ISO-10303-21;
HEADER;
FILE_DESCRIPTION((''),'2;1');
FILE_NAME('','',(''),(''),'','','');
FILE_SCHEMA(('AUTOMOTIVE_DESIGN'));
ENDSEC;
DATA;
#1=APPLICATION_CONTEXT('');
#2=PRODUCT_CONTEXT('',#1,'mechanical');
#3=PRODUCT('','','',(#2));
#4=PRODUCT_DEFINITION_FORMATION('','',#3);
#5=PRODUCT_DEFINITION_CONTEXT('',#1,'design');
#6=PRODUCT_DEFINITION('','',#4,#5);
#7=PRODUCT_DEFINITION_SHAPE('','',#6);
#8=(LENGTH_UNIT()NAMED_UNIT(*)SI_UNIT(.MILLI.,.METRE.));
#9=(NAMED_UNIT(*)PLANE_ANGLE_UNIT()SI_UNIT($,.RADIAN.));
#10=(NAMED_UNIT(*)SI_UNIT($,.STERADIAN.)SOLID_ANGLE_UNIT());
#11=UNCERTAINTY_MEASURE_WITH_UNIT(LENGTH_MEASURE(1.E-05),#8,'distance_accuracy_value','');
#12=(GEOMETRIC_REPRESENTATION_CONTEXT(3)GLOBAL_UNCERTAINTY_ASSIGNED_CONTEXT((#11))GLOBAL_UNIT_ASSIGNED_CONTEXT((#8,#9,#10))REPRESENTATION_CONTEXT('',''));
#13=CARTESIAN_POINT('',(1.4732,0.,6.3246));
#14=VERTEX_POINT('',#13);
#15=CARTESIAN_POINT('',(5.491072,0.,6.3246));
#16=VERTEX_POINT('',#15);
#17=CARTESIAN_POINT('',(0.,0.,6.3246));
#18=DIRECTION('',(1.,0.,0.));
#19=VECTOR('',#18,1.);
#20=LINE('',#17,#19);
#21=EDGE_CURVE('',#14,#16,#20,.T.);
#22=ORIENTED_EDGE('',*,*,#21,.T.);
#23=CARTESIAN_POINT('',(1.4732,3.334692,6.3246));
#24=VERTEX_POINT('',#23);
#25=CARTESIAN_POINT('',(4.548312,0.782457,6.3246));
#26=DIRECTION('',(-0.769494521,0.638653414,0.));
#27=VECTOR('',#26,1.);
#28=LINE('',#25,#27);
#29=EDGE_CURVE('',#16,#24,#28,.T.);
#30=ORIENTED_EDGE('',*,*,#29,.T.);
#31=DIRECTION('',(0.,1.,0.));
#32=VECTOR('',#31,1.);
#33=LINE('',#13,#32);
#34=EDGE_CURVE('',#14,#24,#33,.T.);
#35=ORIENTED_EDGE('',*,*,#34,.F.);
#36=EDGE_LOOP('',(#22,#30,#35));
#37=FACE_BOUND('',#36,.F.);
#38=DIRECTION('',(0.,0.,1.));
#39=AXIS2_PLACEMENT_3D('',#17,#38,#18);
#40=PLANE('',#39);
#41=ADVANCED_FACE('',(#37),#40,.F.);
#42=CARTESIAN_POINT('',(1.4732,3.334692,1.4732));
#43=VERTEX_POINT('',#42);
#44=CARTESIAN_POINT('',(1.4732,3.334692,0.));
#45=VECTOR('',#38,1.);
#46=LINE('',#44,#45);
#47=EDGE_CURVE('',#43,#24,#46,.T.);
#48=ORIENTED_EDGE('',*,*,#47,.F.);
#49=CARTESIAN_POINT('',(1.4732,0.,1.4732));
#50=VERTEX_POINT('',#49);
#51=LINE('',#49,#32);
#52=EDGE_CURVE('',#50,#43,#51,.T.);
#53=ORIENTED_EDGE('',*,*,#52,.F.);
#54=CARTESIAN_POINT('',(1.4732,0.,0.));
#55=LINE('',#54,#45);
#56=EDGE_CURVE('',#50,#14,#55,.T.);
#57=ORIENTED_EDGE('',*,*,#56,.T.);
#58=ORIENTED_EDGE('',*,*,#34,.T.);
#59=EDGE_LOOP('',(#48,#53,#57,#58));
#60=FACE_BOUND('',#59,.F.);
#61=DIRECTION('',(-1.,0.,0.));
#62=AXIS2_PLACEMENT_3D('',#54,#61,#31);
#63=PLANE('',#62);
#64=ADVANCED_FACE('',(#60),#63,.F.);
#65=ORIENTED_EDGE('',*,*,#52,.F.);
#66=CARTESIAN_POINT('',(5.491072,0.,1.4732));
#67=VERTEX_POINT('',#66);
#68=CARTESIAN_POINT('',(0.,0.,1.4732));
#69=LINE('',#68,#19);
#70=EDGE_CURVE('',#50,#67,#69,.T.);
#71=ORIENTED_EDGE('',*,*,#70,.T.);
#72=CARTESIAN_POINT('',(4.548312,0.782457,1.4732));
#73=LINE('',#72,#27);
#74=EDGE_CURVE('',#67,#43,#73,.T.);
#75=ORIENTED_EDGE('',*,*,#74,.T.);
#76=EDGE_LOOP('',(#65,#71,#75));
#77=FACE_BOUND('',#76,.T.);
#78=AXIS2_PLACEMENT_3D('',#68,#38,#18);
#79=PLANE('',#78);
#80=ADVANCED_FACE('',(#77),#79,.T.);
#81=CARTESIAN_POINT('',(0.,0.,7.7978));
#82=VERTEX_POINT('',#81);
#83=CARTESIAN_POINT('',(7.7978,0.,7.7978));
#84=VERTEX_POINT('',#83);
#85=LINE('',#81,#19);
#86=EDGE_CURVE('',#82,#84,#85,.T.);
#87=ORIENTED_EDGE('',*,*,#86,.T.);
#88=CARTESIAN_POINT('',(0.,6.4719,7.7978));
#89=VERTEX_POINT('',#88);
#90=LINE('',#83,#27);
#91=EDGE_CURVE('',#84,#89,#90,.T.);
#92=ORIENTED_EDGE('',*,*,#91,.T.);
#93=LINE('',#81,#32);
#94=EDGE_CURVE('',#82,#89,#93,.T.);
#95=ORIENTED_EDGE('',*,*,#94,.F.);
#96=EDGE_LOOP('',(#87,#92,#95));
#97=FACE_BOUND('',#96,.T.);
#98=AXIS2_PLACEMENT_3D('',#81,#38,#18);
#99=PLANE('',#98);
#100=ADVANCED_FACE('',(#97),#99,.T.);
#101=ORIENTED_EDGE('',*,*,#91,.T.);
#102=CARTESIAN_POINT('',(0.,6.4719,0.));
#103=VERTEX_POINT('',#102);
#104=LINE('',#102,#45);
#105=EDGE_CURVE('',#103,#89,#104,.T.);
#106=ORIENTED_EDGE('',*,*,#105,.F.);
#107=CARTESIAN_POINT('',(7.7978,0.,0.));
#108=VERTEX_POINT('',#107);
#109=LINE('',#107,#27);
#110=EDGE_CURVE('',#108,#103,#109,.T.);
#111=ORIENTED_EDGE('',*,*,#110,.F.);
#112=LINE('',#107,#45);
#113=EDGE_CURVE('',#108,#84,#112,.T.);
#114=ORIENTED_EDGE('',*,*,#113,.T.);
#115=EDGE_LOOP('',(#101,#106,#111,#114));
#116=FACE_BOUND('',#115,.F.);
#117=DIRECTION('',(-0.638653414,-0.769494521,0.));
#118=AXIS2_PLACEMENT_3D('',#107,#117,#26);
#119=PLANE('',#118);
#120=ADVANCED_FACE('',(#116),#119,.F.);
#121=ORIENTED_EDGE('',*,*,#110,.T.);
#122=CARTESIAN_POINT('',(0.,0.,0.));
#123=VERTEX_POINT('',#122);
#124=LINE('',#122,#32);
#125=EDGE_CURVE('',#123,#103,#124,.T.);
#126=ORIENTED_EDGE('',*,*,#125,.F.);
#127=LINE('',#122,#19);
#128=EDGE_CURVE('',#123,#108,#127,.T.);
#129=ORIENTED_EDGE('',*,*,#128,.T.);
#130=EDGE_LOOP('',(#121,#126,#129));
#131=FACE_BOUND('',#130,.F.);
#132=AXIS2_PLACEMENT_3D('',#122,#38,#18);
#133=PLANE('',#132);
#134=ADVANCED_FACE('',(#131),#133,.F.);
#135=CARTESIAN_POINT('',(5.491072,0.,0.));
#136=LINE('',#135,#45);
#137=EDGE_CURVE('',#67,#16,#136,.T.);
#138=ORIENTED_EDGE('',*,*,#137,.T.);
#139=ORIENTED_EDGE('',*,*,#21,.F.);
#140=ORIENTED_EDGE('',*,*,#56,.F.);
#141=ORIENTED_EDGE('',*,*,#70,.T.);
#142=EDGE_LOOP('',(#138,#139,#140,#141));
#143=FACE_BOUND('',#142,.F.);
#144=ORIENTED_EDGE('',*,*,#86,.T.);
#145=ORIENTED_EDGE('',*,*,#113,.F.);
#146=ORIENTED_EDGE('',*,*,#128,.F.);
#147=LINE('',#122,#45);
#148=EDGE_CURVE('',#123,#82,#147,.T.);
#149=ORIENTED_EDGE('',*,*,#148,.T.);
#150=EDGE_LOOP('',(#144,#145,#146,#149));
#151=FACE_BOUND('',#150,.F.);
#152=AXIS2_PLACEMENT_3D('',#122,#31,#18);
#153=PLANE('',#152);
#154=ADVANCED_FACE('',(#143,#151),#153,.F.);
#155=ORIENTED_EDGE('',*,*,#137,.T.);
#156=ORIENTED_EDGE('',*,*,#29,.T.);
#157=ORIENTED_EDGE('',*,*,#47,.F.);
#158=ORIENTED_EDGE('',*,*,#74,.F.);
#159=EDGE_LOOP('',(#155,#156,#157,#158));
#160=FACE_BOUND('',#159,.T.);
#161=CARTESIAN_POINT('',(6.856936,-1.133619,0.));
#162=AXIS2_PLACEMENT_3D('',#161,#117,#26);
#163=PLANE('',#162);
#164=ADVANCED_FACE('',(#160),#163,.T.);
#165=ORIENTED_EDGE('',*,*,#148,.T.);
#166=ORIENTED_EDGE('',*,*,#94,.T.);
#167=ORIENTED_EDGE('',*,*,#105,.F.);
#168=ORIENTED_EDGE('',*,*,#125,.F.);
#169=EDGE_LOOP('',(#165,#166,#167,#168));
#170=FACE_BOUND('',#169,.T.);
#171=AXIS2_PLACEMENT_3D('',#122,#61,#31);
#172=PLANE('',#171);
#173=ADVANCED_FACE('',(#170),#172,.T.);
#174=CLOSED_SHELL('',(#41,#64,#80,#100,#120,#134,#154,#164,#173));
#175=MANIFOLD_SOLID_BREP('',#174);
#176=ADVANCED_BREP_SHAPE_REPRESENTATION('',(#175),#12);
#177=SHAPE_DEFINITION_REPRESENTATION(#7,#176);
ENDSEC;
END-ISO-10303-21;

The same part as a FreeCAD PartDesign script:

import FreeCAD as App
import Part
import Sketcher
Q = App.Units.Quantity


def faces_at(feature, points):
    """Names of the faces that lie closest to the given points."""
    faces = feature.Shape.Faces
    near = lambda p: min(range(len(faces)), key=lambda i: faces[i].distToShape(Part.Vertex(*p))[0])
    return sorted({f"Face{near(p) + 1}" for p in points})


def add_polygon(sketch, points):
    """Adds a closed chain of lines whose ends are joined by coincident constraints."""
    first, n = sketch.GeometryCount, len(points)
    for a, b in zip(points, points[1:] + points[:1]):
        sketch.addGeometry(Part.LineSegment(App.Vector(*a, 0), App.Vector(*b, 0)), False)
    for i in range(n):
        sketch.addConstraint(Sketcher.Constraint("Coincident", first + i, 2, first + (i + 1) % n, 1))

doc = App.newDocument("Part")
body = doc.addObject("PartDesign::Body", "Body")

# Sketch on XY plane
sketch1 = body.newObject("Sketcher::SketchObject", "Sketch")
sketch1.AttachmentSupport = (doc.getObject("XY_Plane"), [""])
sketch1.MapMode = "FlatFace"
add_polygon(sketch1, [(0, 6), (0, 0), (8, 0)])  # lines 0-2
sketch1.addConstraint(Sketcher.Constraint("Vertical", 0))
sketch1.addConstraint(Sketcher.Constraint("Horizontal", 1))
sketch1.addConstraint(Sketcher.Constraint("Coincident", 0, 2, -1, 1))
sketch1.addConstraint(Sketcher.Constraint("DistanceX", 1, 1, 1, 2, Q("0.307 in")))
sketch1.addConstraint(Sketcher.Constraint("DistanceY", 0, 2, 0, 1, Q("0.2548 in")))
pad1 = body.newObject("PartDesign::Pad", "Pad")
pad1.Profile = sketch1
pad1.Length = Q("0.307 in")
doc.recompute()

thickness = body.newObject("PartDesign::Thickness", "Thickness")
thickness.Base = (pad1, faces_at(pad1, [(5.199, 0, 2.599)]))
thickness.Value = Q("0.058 in")
thickness.Reversed = True
thickness.Join = "Intersection"

doc.recompute()
